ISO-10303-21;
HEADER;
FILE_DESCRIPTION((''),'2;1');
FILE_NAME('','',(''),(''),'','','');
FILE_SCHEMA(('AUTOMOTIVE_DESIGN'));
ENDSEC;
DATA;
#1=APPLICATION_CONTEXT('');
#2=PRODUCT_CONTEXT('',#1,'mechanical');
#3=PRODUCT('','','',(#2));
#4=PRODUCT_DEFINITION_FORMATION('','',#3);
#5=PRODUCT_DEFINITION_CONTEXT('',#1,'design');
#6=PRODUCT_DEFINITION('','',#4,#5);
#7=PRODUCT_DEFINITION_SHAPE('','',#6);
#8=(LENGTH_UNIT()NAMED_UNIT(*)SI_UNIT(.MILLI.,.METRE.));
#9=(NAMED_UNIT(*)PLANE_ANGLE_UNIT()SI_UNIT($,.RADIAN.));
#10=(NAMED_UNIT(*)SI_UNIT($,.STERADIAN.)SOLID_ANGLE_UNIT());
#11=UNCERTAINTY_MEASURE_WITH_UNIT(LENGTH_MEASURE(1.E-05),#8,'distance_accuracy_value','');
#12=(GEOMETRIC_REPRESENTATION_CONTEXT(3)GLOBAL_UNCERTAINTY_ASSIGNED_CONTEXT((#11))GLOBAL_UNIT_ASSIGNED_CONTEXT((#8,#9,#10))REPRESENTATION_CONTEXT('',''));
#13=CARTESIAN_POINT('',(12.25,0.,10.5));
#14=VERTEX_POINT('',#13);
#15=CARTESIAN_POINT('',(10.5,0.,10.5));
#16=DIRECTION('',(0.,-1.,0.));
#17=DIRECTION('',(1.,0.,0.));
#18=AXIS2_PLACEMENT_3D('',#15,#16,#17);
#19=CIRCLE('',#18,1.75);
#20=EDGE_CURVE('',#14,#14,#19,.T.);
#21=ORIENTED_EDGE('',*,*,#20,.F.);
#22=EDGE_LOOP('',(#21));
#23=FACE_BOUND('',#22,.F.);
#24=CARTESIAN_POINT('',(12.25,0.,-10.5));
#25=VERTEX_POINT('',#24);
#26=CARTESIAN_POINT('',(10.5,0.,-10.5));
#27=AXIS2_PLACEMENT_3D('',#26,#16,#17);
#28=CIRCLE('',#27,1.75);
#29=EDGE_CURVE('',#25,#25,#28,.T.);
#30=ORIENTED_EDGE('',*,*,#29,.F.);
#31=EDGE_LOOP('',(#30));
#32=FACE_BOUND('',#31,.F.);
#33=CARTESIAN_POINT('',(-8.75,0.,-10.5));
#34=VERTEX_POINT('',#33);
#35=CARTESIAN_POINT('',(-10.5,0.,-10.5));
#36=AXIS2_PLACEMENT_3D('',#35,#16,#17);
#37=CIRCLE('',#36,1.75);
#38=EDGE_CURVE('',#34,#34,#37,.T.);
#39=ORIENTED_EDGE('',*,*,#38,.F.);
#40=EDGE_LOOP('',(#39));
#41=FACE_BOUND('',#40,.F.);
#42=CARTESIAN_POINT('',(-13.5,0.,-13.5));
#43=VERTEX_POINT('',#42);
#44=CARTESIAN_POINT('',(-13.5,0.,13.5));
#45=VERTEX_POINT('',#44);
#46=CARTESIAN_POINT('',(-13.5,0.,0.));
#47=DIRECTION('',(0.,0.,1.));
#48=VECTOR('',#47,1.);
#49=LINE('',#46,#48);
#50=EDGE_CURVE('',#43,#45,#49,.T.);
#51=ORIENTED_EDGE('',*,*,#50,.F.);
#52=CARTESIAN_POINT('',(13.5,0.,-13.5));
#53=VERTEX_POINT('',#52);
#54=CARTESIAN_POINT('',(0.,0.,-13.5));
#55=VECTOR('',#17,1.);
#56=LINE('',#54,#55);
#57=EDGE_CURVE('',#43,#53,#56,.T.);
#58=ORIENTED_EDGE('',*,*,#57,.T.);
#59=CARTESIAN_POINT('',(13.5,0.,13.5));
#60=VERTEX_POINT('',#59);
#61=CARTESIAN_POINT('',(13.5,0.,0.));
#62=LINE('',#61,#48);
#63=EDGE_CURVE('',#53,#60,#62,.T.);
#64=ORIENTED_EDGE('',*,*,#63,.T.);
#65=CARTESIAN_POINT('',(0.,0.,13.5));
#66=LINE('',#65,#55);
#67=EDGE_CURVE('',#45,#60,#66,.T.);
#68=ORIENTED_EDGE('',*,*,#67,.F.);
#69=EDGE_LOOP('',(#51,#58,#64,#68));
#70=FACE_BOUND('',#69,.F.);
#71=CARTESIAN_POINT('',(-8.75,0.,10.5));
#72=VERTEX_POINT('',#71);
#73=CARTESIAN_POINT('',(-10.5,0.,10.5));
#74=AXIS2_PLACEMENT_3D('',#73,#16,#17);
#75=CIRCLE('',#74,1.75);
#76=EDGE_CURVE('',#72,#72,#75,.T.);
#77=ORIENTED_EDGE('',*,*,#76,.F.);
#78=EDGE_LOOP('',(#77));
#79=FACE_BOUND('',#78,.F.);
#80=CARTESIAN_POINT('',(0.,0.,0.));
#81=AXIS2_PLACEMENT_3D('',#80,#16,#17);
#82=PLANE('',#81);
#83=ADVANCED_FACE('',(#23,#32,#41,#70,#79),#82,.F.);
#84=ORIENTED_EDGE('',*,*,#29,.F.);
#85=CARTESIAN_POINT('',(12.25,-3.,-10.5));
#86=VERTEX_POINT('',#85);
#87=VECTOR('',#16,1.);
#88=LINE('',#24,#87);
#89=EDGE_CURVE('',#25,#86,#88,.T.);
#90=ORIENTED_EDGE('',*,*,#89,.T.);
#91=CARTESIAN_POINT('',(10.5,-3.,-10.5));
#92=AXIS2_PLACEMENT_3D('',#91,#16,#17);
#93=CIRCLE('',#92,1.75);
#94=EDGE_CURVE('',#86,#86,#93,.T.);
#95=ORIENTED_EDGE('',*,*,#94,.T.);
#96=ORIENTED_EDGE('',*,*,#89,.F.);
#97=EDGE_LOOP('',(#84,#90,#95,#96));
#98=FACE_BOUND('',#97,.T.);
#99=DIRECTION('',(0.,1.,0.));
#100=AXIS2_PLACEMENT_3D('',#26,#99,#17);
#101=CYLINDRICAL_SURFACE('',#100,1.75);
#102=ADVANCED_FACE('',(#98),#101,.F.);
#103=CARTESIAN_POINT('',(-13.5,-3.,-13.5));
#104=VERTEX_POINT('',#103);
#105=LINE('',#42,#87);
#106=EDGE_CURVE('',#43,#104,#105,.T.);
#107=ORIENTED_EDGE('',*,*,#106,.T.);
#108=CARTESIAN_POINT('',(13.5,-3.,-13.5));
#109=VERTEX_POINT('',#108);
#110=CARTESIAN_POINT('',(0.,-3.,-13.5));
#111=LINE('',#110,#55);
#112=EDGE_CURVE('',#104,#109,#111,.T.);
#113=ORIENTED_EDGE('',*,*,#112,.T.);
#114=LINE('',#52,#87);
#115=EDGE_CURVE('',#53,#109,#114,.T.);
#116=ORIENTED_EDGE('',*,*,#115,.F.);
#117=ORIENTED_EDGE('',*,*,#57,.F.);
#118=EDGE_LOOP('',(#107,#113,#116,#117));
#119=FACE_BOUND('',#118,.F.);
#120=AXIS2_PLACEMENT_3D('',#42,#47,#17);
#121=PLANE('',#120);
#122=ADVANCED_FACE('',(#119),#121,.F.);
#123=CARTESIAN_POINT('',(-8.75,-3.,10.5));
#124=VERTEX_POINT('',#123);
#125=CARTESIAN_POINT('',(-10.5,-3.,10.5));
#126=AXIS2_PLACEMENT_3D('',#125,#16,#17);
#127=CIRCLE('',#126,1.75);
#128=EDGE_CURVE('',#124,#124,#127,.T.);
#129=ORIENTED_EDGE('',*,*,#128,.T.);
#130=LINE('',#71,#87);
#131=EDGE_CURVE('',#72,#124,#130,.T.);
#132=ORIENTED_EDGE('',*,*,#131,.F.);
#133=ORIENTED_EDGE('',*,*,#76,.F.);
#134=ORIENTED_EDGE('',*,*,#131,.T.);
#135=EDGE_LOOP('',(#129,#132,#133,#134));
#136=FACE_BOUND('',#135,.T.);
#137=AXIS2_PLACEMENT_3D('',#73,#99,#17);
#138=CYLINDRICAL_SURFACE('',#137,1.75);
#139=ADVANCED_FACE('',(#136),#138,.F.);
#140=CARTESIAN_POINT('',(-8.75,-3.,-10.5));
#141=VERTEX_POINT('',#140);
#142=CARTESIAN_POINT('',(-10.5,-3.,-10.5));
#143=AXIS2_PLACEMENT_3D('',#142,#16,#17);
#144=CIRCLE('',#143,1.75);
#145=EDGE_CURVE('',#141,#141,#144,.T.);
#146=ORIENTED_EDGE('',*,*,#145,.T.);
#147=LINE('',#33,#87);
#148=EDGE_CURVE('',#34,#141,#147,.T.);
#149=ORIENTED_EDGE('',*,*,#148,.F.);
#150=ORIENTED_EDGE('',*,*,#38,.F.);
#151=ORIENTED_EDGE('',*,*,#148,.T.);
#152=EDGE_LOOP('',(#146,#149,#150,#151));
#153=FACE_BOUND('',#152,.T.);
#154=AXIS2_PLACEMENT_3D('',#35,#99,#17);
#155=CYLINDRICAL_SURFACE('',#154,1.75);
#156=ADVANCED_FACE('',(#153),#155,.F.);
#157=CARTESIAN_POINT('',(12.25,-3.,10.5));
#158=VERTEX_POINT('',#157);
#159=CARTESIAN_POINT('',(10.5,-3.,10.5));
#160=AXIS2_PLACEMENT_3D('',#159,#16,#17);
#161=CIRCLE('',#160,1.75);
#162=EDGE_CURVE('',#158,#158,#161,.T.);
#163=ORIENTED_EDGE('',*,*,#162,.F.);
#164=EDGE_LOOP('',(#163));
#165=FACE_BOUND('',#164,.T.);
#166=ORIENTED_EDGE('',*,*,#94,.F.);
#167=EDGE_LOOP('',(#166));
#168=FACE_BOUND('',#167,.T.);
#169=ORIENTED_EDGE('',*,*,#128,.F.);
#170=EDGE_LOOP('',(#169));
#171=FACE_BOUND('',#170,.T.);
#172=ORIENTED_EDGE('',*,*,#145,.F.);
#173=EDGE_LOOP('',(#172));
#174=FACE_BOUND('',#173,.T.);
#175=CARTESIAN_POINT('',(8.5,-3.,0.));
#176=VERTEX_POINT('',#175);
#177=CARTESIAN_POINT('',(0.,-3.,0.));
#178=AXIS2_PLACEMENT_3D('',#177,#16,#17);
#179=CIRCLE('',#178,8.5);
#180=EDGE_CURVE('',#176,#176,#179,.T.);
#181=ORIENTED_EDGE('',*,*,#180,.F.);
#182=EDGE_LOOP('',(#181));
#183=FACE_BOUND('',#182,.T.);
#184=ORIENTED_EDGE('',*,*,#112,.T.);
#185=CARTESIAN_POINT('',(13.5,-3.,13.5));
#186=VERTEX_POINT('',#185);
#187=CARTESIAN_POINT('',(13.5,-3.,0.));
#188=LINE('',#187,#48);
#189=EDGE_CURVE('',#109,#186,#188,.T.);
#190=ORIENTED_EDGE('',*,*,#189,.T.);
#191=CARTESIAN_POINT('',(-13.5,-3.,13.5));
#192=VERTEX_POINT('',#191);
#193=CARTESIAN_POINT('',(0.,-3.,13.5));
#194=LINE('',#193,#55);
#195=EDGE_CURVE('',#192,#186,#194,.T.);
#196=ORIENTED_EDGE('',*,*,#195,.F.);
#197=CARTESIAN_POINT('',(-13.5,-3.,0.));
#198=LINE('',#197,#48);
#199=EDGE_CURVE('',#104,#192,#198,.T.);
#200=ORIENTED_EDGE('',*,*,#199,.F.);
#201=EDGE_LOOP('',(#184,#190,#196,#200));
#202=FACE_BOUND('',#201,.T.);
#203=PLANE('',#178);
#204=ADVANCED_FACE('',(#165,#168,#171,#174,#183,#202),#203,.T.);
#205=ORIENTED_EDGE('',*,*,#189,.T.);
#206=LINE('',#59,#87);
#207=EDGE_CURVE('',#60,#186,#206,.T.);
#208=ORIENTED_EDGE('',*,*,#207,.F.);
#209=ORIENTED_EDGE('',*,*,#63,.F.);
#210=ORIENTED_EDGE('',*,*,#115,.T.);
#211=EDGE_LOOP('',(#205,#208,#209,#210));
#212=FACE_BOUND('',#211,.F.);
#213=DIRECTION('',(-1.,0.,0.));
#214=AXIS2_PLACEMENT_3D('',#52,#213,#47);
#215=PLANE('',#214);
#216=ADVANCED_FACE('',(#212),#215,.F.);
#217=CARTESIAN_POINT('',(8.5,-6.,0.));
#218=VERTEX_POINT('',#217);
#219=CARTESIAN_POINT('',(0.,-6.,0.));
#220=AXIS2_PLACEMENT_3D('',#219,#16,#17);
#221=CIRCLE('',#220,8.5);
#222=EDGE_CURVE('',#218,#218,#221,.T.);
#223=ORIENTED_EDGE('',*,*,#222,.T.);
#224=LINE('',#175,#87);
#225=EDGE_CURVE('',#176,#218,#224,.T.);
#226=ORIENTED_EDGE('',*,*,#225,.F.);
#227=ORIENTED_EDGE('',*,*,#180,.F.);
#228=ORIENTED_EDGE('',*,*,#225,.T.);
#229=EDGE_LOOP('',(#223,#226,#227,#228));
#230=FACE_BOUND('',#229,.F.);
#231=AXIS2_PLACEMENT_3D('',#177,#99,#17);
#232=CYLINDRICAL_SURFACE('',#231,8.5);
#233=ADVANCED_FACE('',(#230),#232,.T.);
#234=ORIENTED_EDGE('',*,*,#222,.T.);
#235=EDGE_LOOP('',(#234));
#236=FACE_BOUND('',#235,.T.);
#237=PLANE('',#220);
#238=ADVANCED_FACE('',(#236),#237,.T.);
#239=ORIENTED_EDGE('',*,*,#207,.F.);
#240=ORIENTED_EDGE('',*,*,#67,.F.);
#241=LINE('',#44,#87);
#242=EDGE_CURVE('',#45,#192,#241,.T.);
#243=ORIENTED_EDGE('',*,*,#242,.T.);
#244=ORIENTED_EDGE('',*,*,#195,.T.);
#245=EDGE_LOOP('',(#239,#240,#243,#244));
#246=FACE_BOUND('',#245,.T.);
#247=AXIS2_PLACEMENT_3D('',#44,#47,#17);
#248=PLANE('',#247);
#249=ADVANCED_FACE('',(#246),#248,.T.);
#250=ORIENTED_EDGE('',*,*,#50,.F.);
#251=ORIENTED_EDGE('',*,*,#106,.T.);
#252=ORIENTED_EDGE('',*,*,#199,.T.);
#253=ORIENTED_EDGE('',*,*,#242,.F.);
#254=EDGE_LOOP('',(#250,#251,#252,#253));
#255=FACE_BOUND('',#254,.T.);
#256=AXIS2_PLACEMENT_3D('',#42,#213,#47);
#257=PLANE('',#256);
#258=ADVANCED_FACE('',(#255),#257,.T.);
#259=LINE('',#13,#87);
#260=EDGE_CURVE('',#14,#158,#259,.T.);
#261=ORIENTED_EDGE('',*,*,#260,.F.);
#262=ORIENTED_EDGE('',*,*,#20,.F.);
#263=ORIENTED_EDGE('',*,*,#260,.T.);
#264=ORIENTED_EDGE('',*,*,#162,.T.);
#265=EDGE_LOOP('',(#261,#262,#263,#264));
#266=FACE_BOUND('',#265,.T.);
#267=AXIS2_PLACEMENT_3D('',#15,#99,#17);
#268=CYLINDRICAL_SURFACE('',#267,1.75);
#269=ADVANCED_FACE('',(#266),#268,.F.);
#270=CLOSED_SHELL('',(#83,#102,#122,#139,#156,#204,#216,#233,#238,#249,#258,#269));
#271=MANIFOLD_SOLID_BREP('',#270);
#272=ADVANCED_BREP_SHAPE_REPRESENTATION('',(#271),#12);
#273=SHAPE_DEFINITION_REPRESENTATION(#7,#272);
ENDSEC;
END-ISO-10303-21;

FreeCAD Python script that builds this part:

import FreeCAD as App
import Part
import Sketcher
Q = App.Units.Quantity

doc = App.newDocument("Part")
body = doc.addObject("PartDesign::Body", "Body")

# Sketch on XZ plane
sketch1 = body.newObject("Sketcher::SketchObject", "Sketch")
sketch1.AttachmentSupport = (doc.getObject("XZ_Plane"), [""])
sketch1.MapMode = "FlatFace"
sketch1.addGeometry([
    Part.LineSegment(App.Vector(-13.5, 13.5, 0), App.Vector(-13.5, -13.5, 0)),  # 0
    Part.LineSegment(App.Vector(-13.5, -13.5, 0), App.Vector(13.5, -13.5, 0)),  # 1
    Part.LineSegment(App.Vector(13.5, -13.5, 0), App.Vector(13.5, 13.5, 0)),  # 2
    Part.LineSegment(App.Vector(13.5, 13.5, 0), App.Vector(-13.5, 13.5, 0)),  # 3
    Part.Circle(App.Vector(-10.5, -10.5, 0), App.Vector(0, 0, 1), 1.8),  # 4
    Part.Circle(App.Vector(10.5, -10.5, 0), App.Vector(0, 0, 1), 1.8),  # 5
    Part.Circle(App.Vector(-10.5, 10.5, 0), App.Vector(0, 0, 1), 1.8),  # 6
    Part.Circle(App.Vector(10.5, 10.5, 0), App.Vector(0, 0, 1), 1.8),  # 7
], False)
sketch1.addConstraint([
    Sketcher.Constraint("Coincident", 0, 2, 1, 1),
    Sketcher.Constraint("Coincident", 1, 2, 2, 1),
    Sketcher.Constraint("Coincident", 2, 2, 3, 1),
    Sketcher.Constraint("Coincident", 3, 2, 0, 1),
    Sketcher.Constraint("Vertical", 0),
    Sketcher.Constraint("Horizontal", 1),
    Sketcher.Constraint("Vertical", 2),
    Sketcher.Constraint("Horizontal", 3),
    Sketcher.Constraint("Equal", 4, 5),
    Sketcher.Constraint("Equal", 5, 6),
    Sketcher.Constraint("Equal", 6, 7),
    Sketcher.Constraint("Symmetric", 5, 3, 6, 3, -1, 1),
    Sketcher.Constraint("Symmetric", 4, 3, 7, 3, -1, 1),
    Sketcher.Constraint("Symmetric", 0, 2, 2, 2, -1, 1),
    Sketcher.Constraint("Symmetric", 4, 3, 5, 3, -2),
    Sketcher.Constraint("Equal", 3, 0),
    Sketcher.Constraint("Diameter", 4, Q("3.5 mm")),
    Sketcher.Constraint("DistanceX", 1, 1, 1, 2, Q("27 mm")),
    Sketcher.Constraint("DistanceX", 4, 3, 5, 3, Q("21 mm")),
    Sketcher.Constraint("DistanceY", 4, 3, 6, 3, Q("21 mm")),
])
pad1 = body.newObject("PartDesign::Pad", "Pad")
pad1.Profile = sketch1
pad1.Length = 3

# Sketch on XZ plane
sketch2 = body.newObject("Sketcher::SketchObject", "Sketch001")
sketch2.AttachmentSupport = (doc.getObject("XZ_Plane"), [""])
sketch2.MapMode = "FlatFace"
sketch2.AttachmentOffset = App.Placement(App.Vector(0, 0, 3), App.Rotation())
sketch2.addGeometry(Part.Circle(App.Vector(0, 0, 0), App.Vector(0, 0, 1), 8), False)
sketch2.addConstraint([
    Sketcher.Constraint("Coincident", 0, 3, -1, 1),
    Sketcher.Constraint("Diameter", 0, Q("17 mm")),
])
pad2 = body.newObject("PartDesign::Pad", "Pad001")
pad2.Profile = sketch2
pad2.Length = 3

doc.recompute()
